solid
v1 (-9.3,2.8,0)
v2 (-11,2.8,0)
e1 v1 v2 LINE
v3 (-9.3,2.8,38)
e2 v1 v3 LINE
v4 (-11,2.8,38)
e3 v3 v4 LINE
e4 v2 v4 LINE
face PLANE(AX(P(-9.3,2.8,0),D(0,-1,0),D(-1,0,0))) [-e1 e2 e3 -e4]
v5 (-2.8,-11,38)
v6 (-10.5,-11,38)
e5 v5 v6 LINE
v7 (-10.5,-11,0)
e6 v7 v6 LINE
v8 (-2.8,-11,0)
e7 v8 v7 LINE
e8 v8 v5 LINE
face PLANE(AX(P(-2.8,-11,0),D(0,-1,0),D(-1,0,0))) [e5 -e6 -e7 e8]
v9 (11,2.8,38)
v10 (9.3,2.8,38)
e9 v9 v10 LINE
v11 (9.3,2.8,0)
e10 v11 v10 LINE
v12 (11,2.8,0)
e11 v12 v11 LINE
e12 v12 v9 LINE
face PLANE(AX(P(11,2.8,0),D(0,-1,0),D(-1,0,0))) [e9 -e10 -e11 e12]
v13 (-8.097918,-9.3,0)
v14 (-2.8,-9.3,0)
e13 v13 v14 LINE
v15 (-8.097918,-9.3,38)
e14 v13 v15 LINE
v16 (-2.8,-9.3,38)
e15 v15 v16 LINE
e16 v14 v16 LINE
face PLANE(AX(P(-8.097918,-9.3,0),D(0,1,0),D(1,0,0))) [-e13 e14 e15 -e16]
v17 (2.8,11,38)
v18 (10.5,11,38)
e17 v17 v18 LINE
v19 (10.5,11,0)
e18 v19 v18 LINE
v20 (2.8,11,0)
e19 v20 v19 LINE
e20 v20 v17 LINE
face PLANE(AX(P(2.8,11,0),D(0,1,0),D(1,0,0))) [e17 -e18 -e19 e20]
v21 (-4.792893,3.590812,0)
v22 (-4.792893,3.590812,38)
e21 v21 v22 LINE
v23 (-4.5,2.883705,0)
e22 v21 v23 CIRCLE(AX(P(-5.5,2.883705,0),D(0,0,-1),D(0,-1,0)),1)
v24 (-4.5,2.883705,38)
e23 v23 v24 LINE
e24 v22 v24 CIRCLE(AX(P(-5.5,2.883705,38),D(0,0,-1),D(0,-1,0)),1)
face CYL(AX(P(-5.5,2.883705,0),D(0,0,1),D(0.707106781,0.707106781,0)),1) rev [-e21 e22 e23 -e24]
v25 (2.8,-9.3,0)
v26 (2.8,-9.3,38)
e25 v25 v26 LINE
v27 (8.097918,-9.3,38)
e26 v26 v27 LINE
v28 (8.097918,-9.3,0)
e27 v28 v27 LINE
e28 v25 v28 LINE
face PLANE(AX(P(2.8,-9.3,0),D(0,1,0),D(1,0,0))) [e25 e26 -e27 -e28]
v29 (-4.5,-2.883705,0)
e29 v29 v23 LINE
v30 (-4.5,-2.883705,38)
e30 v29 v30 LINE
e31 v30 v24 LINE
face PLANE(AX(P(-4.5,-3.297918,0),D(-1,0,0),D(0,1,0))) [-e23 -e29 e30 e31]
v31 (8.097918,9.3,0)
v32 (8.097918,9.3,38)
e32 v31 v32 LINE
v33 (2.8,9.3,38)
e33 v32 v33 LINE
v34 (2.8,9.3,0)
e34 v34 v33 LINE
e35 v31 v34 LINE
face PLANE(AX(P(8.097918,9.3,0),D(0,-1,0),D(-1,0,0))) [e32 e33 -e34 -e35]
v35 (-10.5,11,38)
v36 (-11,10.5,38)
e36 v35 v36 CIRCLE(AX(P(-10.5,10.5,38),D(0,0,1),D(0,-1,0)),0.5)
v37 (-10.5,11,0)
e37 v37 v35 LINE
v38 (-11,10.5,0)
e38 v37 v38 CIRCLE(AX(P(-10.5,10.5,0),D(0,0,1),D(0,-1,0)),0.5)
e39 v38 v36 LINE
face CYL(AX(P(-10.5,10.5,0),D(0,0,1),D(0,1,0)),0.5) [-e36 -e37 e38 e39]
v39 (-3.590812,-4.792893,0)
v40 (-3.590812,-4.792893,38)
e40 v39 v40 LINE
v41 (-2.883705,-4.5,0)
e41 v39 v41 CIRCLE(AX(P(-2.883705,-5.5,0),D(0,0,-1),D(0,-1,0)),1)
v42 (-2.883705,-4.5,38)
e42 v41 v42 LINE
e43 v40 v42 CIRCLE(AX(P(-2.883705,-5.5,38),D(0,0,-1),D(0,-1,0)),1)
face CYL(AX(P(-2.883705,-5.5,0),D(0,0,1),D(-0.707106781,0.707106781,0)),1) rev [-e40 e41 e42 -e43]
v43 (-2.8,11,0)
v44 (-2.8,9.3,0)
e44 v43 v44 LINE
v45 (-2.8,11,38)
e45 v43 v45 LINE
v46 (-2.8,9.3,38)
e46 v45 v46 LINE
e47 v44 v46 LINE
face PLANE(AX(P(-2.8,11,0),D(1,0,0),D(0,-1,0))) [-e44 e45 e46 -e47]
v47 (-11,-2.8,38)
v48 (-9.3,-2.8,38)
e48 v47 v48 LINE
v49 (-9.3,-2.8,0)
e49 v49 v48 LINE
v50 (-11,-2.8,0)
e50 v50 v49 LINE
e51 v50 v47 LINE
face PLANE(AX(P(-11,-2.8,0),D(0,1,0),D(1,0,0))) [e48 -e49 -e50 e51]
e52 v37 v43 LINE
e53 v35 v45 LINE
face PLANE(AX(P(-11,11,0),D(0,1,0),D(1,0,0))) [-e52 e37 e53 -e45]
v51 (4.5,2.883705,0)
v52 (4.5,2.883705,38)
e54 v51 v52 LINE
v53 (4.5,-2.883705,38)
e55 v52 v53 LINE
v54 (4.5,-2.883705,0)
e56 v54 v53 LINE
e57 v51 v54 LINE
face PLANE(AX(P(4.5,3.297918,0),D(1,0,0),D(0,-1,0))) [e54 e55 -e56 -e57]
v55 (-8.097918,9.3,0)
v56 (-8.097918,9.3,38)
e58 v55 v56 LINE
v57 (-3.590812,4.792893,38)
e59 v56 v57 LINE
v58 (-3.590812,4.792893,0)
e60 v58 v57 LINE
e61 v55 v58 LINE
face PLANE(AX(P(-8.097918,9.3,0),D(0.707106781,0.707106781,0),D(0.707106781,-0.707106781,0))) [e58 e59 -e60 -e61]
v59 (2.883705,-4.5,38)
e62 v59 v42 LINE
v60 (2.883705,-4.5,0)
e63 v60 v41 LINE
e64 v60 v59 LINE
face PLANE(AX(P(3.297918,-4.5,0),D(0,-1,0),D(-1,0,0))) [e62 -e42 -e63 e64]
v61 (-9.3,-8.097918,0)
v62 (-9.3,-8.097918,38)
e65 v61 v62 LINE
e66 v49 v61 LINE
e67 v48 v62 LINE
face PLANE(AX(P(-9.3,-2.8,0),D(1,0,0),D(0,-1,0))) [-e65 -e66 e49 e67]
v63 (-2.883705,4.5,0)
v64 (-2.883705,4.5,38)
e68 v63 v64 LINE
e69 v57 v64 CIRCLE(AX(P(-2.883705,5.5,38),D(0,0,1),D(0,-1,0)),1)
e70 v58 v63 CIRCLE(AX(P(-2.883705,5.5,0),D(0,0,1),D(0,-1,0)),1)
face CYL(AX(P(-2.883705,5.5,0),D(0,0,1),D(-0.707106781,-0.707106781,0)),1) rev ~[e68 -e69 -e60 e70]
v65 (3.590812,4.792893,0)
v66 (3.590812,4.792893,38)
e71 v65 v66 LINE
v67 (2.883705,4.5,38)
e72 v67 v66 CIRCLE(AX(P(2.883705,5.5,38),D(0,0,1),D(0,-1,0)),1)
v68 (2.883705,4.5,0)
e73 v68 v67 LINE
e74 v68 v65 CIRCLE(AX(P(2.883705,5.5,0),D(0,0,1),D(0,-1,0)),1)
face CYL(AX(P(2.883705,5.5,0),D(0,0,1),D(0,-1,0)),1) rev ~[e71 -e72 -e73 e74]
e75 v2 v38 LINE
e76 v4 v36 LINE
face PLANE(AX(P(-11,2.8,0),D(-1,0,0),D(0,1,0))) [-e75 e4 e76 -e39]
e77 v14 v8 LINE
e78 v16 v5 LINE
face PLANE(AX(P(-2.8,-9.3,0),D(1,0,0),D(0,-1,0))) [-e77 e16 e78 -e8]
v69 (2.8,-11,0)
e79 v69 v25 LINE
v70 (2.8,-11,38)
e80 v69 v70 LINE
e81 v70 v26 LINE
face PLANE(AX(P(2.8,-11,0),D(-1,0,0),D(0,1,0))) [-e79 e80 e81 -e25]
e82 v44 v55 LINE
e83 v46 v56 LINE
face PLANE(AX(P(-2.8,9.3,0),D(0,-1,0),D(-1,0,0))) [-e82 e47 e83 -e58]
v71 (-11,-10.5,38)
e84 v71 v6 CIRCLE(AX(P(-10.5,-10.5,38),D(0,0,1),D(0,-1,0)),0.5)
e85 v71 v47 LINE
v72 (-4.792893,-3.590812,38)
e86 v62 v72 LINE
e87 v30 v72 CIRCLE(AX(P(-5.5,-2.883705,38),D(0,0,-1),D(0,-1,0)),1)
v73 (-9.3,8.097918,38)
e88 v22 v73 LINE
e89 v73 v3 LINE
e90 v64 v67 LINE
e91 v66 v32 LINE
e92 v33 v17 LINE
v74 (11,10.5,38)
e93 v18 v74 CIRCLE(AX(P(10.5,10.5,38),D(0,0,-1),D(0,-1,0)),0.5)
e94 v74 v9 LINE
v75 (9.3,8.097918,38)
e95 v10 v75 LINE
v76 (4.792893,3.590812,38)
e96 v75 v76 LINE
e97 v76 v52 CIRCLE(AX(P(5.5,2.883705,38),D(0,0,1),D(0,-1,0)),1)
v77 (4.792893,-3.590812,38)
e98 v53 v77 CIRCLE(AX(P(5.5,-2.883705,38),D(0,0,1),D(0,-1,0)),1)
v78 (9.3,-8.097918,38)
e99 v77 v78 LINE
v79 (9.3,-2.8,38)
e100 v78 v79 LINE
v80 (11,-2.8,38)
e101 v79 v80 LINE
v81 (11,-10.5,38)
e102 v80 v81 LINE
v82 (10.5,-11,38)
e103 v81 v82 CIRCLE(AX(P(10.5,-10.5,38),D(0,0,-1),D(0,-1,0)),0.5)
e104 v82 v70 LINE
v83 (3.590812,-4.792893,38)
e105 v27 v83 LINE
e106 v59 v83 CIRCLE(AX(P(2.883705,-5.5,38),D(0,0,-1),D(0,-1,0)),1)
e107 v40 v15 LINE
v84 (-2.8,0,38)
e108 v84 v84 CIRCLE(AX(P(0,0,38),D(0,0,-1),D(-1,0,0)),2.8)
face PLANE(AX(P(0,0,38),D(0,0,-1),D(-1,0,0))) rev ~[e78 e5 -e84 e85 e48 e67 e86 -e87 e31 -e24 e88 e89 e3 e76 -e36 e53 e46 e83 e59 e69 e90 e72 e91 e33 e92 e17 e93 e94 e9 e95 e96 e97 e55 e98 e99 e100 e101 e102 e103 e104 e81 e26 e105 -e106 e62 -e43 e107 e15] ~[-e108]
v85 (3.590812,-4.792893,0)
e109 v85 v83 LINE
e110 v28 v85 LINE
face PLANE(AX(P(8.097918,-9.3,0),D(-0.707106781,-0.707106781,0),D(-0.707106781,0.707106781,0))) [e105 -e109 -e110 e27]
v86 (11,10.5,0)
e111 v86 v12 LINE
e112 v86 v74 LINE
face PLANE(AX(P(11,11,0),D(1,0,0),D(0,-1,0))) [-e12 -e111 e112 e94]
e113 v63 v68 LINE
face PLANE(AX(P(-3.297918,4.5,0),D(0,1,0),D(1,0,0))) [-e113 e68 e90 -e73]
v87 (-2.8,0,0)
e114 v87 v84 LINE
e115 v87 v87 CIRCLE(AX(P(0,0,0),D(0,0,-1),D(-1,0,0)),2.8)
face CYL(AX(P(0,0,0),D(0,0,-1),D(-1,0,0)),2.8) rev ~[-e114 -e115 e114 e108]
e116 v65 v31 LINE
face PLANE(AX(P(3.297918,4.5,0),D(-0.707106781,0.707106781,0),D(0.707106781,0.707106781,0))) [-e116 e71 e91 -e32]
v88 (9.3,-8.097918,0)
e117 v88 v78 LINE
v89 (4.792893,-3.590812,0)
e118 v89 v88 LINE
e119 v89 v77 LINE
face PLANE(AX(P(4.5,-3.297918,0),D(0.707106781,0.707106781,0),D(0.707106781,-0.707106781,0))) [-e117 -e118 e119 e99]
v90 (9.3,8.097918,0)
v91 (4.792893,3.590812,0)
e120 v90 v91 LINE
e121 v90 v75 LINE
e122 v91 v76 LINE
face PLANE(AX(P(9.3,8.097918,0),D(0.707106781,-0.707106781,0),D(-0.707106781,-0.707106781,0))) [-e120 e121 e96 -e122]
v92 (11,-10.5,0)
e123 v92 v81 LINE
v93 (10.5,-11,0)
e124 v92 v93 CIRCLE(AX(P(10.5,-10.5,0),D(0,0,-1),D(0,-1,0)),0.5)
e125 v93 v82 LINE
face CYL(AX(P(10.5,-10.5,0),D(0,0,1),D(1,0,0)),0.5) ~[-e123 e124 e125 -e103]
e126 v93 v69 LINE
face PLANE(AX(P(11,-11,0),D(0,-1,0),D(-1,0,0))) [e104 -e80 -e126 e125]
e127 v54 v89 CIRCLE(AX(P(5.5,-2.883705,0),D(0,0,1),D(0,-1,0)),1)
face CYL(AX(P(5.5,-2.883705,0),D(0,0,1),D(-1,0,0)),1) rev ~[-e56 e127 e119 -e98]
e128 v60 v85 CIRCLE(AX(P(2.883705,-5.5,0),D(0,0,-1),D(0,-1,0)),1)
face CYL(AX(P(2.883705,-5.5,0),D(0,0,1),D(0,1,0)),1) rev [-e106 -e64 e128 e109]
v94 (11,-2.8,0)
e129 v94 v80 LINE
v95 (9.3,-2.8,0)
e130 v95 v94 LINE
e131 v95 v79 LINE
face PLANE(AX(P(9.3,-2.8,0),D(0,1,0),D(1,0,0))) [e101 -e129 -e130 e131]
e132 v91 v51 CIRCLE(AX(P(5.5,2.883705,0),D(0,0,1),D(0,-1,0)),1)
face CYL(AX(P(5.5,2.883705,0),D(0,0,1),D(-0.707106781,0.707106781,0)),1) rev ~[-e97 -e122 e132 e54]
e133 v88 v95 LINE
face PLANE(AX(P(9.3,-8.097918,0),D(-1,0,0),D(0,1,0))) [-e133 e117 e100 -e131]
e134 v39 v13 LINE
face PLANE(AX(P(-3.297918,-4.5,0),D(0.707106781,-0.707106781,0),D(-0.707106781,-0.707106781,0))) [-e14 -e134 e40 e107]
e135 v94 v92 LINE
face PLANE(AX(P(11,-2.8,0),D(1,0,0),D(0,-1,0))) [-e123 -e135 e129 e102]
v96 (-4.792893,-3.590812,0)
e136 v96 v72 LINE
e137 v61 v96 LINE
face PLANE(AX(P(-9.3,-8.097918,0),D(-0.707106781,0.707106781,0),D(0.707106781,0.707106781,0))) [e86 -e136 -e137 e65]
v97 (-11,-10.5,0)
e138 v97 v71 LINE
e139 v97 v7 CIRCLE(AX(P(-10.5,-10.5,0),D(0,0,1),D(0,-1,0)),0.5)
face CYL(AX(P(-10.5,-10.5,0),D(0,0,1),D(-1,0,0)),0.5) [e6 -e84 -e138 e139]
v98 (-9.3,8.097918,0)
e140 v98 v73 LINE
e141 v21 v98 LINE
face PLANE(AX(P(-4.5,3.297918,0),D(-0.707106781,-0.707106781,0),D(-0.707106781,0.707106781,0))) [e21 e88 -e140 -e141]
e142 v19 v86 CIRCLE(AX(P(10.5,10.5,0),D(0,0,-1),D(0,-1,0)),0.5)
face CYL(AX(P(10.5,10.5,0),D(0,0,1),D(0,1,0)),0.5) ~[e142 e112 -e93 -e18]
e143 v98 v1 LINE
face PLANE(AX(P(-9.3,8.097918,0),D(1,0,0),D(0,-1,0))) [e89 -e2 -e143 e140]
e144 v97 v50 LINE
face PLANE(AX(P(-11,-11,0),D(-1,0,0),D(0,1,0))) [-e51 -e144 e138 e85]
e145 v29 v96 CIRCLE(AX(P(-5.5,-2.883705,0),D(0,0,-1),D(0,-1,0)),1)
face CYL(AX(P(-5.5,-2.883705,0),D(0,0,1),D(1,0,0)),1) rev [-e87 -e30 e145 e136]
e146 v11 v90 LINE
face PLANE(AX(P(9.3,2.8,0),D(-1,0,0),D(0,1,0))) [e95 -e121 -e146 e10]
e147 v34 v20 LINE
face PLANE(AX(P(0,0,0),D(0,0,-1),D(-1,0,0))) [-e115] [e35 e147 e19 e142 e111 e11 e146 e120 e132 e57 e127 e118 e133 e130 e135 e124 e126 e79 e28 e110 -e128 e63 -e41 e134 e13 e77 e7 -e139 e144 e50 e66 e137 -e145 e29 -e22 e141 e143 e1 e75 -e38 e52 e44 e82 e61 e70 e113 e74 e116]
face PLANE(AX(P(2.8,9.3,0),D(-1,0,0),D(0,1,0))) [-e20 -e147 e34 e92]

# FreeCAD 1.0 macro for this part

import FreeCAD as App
import Part
import Sketcher
Q = App.Units.Quantity


def edges_at(feature, points):
    """Names of the edges that pass closest to the given points."""
    edges = feature.Shape.Edges
    near = lambda p: min(range(len(edges)), key=lambda i: edges[i].distToShape(Part.Vertex(*p))[0])
    return sorted({f"Edge{near(p) + 1}" for p in points})

doc = App.newDocument("Part")
body = doc.addObject("PartDesign::Body", "Body")

# Sketch on XY plane
sketch1 = body.newObject("Sketcher::SketchObject", "Sketch")
sketch1.AttachmentSupport = (doc.getObject("XY_Plane"), [""])
sketch1.MapMode = "FlatFace"
sketch1.addGeometry([
    Part.LineSegment(App.Vector(-2.8, 9.3, 0), App.Vector(-2.8, 11, 0)),  # 0
    Part.LineSegment(App.Vector(-2.8, 11, 0), App.Vector(-11, 11, 0)),  # 1
    Part.LineSegment(App.Vector(-11, 11, 0), App.Vector(-11, 2.8, 0)),  # 2
    Part.LineSegment(App.Vector(-11, 2.8, 0), App.Vector(-9.3, 2.8, 0)),  # 3
    Part.LineSegment(App.Vector(-9.3, 2.8, 0), App.Vector(-9.3, 8.1, 0)),  # 4
    Part.LineSegment(App.Vector(-9.3, 8.1, 0), App.Vector(-4.5, 3.3, 0)),  # 5
    Part.LineSegment(App.Vector(-4.5, 3.3, 0), App.Vector(-4.5, -3.3, 0)),  # 6
    Part.LineSegment(App.Vector(-4.5, -3.3, 0), App.Vector(-9.3, -8.1, 0)),  # 7
    Part.LineSegment(App.Vector(-9.3, -8.1, 0), App.Vector(-9.3, -2.8, 0)),  # 8
    Part.LineSegment(App.Vector(-9.3, -2.8, 0), App.Vector(-11, -2.8, 0)),  # 9
    Part.LineSegment(App.Vector(-11, -2.8, 0), App.Vector(-11, -11, 0)),  # 10
    Part.LineSegment(App.Vector(-11, -11, 0), App.Vector(-2.8, -11, 0)),  # 11
    Part.LineSegment(App.Vector(-2.8, -11, 0), App.Vector(-2.8, -9.3, 0)),  # 12
    Part.LineSegment(App.Vector(-2.8, -9.3, 0), App.Vector(-8.1, -9.3, 0)),  # 13
    Part.LineSegment(App.Vector(-8.1, -9.3, 0), App.Vector(-3.3, -4.5, 0)),  # 14
    Part.LineSegment(App.Vector(-3.3, -4.5, 0), App.Vector(3.3, -4.5, 0)),  # 15
    Part.LineSegment(App.Vector(3.3, -4.5, 0), App.Vector(8.1, -9.3, 0)),  # 16
    Part.LineSegment(App.Vector(8.1, -9.3, 0), App.Vector(2.8, -9.3, 0)),  # 17
    Part.LineSegment(App.Vector(2.8, -9.3, 0), App.Vector(2.8, -11, 0)),  # 18
    Part.LineSegment(App.Vector(2.8, -11, 0), App.Vector(11, -11, 0)),  # 19
    Part.LineSegment(App.Vector(11, -11, 0), App.Vector(11, -2.8, 0)),  # 20
    Part.LineSegment(App.Vector(11, -2.8, 0), App.Vector(9.3, -2.8, 0)),  # 21
    Part.LineSegment(App.Vector(9.3, -2.8, 0), App.Vector(9.3, -8.1, 0)),  # 22
    Part.LineSegment(App.Vector(9.3, -8.1, 0), App.Vector(4.5, -3.3, 0)),  # 23
    Part.LineSegment(App.Vector(4.5, -3.3, 0), App.Vector(4.5, 3.3, 0)),  # 24
    Part.LineSegment(App.Vector(4.5, 3.3, 0), App.Vector(9.3, 8.1, 0)),  # 25
    Part.LineSegment(App.Vector(9.3, 8.1, 0), App.Vector(9.3, 2.8, 0)),  # 26
    Part.LineSegment(App.Vector(9.3, 2.8, 0), App.Vector(11, 2.8, 0)),  # 27
    Part.LineSegment(App.Vector(11, 2.8, 0), App.Vector(11, 11, 0)),  # 28
    Part.LineSegment(App.Vector(11, 11, 0), App.Vector(2.8, 11, 0)),  # 29
    Part.LineSegment(App.Vector(2.8, 11, 0), App.Vector(2.8, 9.3, 0)),  # 30
    Part.LineSegment(App.Vector(2.8, 9.3, 0), App.Vector(8.1, 9.3, 0)),  # 31
    Part.LineSegment(App.Vector(8.1, 9.3, 0), App.Vector(3.3, 4.5, 0)),  # 32
    Part.LineSegment(App.Vector(3.3, 4.5, 0), App.Vector(-3.3, 4.5, 0)),  # 33
    Part.LineSegment(App.Vector(-3.3, 4.5, 0), App.Vector(-8.1, 9.3, 0)),  # 34
    Part.LineSegment(App.Vector(-8.1, 9.3, 0), App.Vector(-2.8, 9.3, 0)),  # 35
], False)
sketch1.addConstraint([
    Sketcher.Constraint("Coincident", 0, 2, 1, 1),
    Sketcher.Constraint("Coincident", 1, 2, 2, 1),
    Sketcher.Constraint("Coincident", 2, 2, 3, 1),
    Sketcher.Constraint("Coincident", 3, 2, 4, 1),
    Sketcher.Constraint("Coincident", 4, 2, 5, 1),
    Sketcher.Constraint("Coincident", 5, 2, 6, 1),
    Sketcher.Constraint("Coincident", 6, 2, 7, 1),
    Sketcher.Constraint("Coincident", 7, 2, 8, 1),
    Sketcher.Constraint("Coincident", 8, 2, 9, 1),
    Sketcher.Constraint("Coincident", 9, 2, 10, 1),
    Sketcher.Constraint("Coincident", 10, 2, 11, 1),
    Sketcher.Constraint("Coincident", 11, 2, 12, 1),
    Sketcher.Constraint("Coincident", 12, 2, 13, 1),
    Sketcher.Constraint("Coincident", 13, 2, 14, 1),
    Sketcher.Constraint("Coincident", 14, 2, 15, 1),
    Sketcher.Constraint("Coincident", 15, 2, 16, 1),
    Sketcher.Constraint("Coincident", 16, 2, 17, 1),
    Sketcher.Constraint("Coincident", 17, 2, 18, 1),
    Sketcher.Constraint("Coincident", 18, 2, 19, 1),
    Sketcher.Constraint("Coincident", 19, 2, 20, 1),
    Sketcher.Constraint("Coincident", 20, 2, 21, 1),
    Sketcher.Constraint("Coincident", 21, 2, 22, 1),
    Sketcher.Constraint("Coincident", 22, 2, 23, 1),
    Sketcher.Constraint("Coincident", 23, 2, 24, 1),
    Sketcher.Constraint("Coincident", 24, 2, 25, 1),
    Sketcher.Constraint("Coincident", 25, 2, 26, 1),
    Sketcher.Constraint("Coincident", 26, 2, 27, 1),
    Sketcher.Constraint("Coincident", 27, 2, 28, 1),
    Sketcher.Constraint("Coincident", 28, 2, 29, 1),
    Sketcher.Constraint("Coincident", 29, 2, 30, 1),
    Sketcher.Constraint("Coincident", 30, 2, 31, 1),
    Sketcher.Constraint("Coincident", 31, 2, 32, 1),
    Sketcher.Constraint("Coincident", 32, 2, 33, 1),
    Sketcher.Constraint("Coincident", 33, 2, 34, 1),
    Sketcher.Constraint("Coincident", 34, 2, 35, 1),
    Sketcher.Constraint("Coincident", 35, 2, 0, 1),
    Sketcher.Constraint("Vertical", 0),
    Sketcher.Constraint("Horizontal", 1),
    Sketcher.Constraint("Vertical", 2),
    Sketcher.Constraint("Horizontal", 3),
    Sketcher.Constraint("Vertical", 4),
    Sketcher.Constraint("Vertical", 6),
    Sketcher.Constraint("Vertical", 8),
    Sketcher.Constraint("Horizontal", 9),
    Sketcher.Constraint("Vertical", 10),
    Sketcher.Constraint("Horizontal", 11),
    Sketcher.Constraint("Vertical", 12),
    Sketcher.Constraint("Horizontal", 13),
    Sketcher.Constraint("Horizontal", 15),
    Sketcher.Constraint("Horizontal", 17),
    Sketcher.Constraint("Vertical", 18),
    Sketcher.Constraint("Horizontal", 19),
    Sketcher.Constraint("Vertical", 20),
    Sketcher.Constraint("Horizontal", 21),
    Sketcher.Constraint("Vertical", 22),
    Sketcher.Constraint("Vertical", 24),
    Sketcher.Constraint("Vertical", 26),
    Sketcher.Constraint("Horizontal", 27),
    Sketcher.Constraint("Vertical", 28),
    Sketcher.Constraint("Horizontal", 29),
    Sketcher.Constraint("Vertical", 30),
    Sketcher.Constraint("Horizontal", 31),
    Sketcher.Constraint("Horizontal", 33),
    Sketcher.Constraint("Horizontal", 35),
    Sketcher.Constraint("Symmetric", 0, 2, 18, 2, -1, 1),
    Sketcher.Constraint("Symmetric", 2, 2, 20, 2, -1, 1),
    Sketcher.Constraint("Symmetric", 4, 2, 22, 2, -1, 1),
    Sketcher.Constraint("Symmetric", 5, 2, 23, 2, -1, 1),
    Sketcher.Constraint("Symmetric", 7, 2, 25, 2, -1, 1),
    Sketcher.Constraint("Symmetric", 9, 2, 27, 2, -1, 1),
    Sketcher.Constraint("Symmetric", 11, 2, 29, 2, -1, 1),
    Sketcher.Constraint("Symmetric", 13, 2, 31, 2, -1, 1),
    Sketcher.Constraint("Symmetric", 14, 2, 32, 2, -1, 1),
    Sketcher.Constraint("Symmetric", 16, 2, 34, 2, -1, 1),
    Sketcher.Constraint("Symmetric", 13, 2, 16, 2, -2),
    Sketcher.Constraint("Symmetric", 11, 2, 18, 2, -2),
    Sketcher.Constraint("Symmetric", 9, 2, 20, 2, -2),
    Sketcher.Constraint("Symmetric", 7, 2, 22, 2, -2),
    Sketcher.Constraint("Perpendicular", 5, 7),
    Sketcher.Constraint("Parallel", 7, 14),
    Sketcher.Constraint("Perpendicular", 14, 16),
    Sketcher.Constraint("Perpendicular", 23, 25),
    Sketcher.Constraint("Perpendicular", 32, 34),
    Sketcher.Constraint("Horizontal", 6, 2, 23, 2),
    Sketcher.Constraint("Equal", 27, 0),
    Sketcher.Constraint("Equal", 29, 2),
    Sketcher.Constraint("Equal", 35, 4),
    Sketcher.Constraint("Equal", 33, 6),
    Sketcher.Constraint("Equal", 7, 14),
    Sketcher.Constraint("DistanceX", 1, 2, 1, 1, Q("8.2 mm")),
    Sketcher.Constraint("DistanceX", 3, 1, 3, 2, Q("1.7 mm")),
    Sketcher.Constraint("DistanceY", -1, 1, 0, 2, Q("11 mm")),
    Sketcher.Constraint("DistanceX", 5, 2, 24, 2, Q("9 mm")),
    Sketcher.Constraint("DistanceX", 13, 2, 13, 1, Q("5.297918 mm")),
])
pad1 = body.newObject("PartDesign::Pad", "Pad")
pad1.Profile = sketch1
pad1.Length = 38

# Sketch on XY plane
sketch2 = body.newObject("Sketcher::SketchObject", "Sketch001")
sketch2.AttachmentSupport = (doc.getObject("XY_Plane"), [""])
sketch2.MapMode = "FlatFace"
sketch2.addGeometry(Part.Circle(App.Vector(0, 0, 0), App.Vector(0, 0, 1), 2.8), False)
sketch2.addConstraint([
    Sketcher.Constraint("Coincident", 0, 3, -1, 1),
    Sketcher.Constraint("Diameter", 0, Q("5.6 mm")),
])
pocket1 = body.newObject("PartDesign::Pocket", "Pocket")
pocket1.Profile = sketch2
pocket1.Type = "ThroughAll"
pocket1.Reversed = True
doc.recompute()

fillet = body.newObject("PartDesign::Fillet", "Fillet")
fillet.Base = (pocket1, edges_at(pocket1, [
    (-11, 11, 19),
    (11, 11, 19),
    (11, -11, 19),
    (-11, -11, 19),
]))
fillet.Radius = 0.5
doc.recompute()

fillet2 = body.newObject("PartDesign::Fillet", "Fillet001")
fillet2.Base = (fillet, edges_at(fillet, [
    (-4.5, -3.298, 19),
    (-4.5, 3.298, 19),
    (-3.298, 4.5, 19),
    (3.298, 4.5, 19),
    (4.5, 3.298, 19),
    (4.5, -3.298, 19),
    (3.298, -4.5, 19),
    (-3.298, -4.5, 19),
]))
fillet2.Radius = 1

doc.recompute()
